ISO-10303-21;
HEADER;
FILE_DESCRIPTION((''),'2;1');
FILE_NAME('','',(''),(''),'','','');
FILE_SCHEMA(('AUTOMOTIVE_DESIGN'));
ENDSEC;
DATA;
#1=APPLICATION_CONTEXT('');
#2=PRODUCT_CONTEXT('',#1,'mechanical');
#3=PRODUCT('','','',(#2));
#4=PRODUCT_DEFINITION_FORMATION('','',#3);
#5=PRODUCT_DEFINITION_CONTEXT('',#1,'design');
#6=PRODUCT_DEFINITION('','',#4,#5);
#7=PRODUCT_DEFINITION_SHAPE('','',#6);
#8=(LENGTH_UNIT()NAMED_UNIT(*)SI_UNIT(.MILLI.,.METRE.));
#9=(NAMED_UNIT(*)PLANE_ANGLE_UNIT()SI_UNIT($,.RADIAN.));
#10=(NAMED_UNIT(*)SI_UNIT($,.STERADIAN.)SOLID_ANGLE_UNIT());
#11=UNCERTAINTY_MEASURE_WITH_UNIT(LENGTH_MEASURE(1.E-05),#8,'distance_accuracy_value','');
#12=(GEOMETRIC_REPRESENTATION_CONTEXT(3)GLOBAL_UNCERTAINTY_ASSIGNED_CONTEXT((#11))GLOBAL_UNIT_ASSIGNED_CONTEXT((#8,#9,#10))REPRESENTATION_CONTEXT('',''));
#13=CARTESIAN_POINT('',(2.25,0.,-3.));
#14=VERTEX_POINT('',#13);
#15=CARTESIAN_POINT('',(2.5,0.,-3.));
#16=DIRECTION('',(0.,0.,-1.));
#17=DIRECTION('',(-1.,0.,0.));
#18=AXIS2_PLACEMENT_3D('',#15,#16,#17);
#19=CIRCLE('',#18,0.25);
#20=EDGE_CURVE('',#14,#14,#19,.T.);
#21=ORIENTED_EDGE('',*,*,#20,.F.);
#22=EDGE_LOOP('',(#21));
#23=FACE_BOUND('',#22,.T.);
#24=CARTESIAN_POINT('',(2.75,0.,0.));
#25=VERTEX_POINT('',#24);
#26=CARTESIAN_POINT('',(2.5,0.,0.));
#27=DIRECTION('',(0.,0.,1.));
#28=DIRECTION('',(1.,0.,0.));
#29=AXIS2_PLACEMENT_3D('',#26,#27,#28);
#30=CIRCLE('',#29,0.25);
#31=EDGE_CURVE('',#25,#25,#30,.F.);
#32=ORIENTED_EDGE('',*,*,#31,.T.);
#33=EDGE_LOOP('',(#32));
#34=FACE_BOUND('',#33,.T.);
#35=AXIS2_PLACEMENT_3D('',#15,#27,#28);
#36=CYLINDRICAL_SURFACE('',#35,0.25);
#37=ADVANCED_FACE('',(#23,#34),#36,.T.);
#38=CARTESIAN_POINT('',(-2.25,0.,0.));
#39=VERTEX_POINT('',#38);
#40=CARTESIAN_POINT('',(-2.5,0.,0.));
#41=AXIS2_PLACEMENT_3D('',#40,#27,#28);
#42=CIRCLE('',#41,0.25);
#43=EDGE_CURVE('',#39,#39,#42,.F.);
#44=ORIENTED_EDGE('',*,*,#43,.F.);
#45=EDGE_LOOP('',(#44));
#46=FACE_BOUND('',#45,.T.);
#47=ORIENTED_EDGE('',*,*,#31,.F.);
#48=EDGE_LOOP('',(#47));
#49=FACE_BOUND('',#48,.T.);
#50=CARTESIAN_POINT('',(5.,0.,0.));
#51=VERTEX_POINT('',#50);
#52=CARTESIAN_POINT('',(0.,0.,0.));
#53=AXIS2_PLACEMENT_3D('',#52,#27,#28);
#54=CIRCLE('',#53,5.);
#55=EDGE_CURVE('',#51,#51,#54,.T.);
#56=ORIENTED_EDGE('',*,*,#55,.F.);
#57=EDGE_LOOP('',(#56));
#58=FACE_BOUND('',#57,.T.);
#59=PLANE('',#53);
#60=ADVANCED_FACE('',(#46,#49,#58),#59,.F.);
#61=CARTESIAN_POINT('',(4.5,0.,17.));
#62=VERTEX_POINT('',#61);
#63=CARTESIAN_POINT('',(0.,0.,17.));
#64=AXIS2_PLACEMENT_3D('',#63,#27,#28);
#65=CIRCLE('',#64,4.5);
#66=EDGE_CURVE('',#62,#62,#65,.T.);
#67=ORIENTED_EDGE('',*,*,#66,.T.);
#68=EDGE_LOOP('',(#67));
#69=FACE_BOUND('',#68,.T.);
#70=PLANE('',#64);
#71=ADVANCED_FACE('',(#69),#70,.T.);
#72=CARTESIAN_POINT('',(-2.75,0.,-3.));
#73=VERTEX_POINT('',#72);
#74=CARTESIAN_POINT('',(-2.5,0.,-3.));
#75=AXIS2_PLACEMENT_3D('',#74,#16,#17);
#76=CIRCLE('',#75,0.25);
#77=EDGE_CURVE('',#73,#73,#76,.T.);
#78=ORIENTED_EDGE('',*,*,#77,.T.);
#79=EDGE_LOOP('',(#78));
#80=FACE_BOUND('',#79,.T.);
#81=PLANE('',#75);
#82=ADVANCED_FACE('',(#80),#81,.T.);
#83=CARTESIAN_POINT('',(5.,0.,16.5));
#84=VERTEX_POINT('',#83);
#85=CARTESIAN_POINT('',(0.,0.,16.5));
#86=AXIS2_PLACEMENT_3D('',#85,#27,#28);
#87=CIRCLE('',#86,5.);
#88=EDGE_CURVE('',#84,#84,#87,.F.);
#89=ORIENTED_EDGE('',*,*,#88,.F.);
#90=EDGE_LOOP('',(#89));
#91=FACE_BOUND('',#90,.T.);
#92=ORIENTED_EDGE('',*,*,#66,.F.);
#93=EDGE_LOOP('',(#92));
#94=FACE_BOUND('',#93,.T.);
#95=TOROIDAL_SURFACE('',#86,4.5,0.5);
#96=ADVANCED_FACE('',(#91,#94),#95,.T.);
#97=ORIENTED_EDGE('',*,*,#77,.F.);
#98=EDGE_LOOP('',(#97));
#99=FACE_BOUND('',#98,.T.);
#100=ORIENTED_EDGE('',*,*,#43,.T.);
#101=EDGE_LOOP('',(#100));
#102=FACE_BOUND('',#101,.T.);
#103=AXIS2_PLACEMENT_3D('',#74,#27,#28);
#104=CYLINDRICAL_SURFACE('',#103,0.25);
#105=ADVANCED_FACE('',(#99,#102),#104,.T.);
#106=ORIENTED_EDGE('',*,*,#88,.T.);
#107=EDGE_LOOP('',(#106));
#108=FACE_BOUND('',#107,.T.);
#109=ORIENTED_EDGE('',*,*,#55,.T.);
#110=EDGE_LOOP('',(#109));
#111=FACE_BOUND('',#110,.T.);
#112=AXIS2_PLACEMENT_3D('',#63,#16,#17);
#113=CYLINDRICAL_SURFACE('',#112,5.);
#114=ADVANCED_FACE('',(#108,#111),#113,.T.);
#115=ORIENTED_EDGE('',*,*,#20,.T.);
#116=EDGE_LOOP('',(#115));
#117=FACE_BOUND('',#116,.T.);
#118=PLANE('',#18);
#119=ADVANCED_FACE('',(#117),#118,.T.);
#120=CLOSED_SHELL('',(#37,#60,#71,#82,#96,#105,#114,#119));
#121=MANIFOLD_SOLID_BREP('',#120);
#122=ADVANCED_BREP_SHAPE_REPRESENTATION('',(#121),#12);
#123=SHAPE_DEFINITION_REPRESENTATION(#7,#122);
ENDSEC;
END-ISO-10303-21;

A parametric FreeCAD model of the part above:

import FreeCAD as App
import Part
import Sketcher


def edges_at(feature, points):
    """Names of the edges that pass closest to the given points."""
    edges = feature.Shape.Edges
    near = lambda p: min(range(len(edges)), key=lambda i: edges[i].distToShape(Part.Vertex(*p))[0])
    return sorted({f"Edge{near(p) + 1}" for p in points})

doc = App.newDocument("Part")
body = doc.addObject("PartDesign::Body", "Body")

# Sketch on XY plane
sketch1 = doc.addObject("Sketcher::SketchObject", "Sketch")
body.addObject(sketch1)
sketch1.AttachmentSupport = (doc.XY_Plane, [""])
sketch1.MapMode = "FlatFace"
sketch1.addGeometry(Part.Circle(App.Vector(0, 0, 0), App.Vector(0, 0, 1), 5), False)
sketch1.addConstraint(Sketcher.Constraint("Coincident", 0, 3, -1, 1))
sketch1.addConstraint(Sketcher.Constraint("Diameter", 0, 10.0))
pad1 = doc.addObject("PartDesign::Pad", "Pad")
body.addObject(pad1)
pad1.Profile = sketch1
pad1.Length = 17

# Sketch on XY plane
sketch2 = doc.addObject("Sketcher::SketchObject", "Sketch001")
body.addObject(sketch2)
sketch2.AttachmentSupport = (doc.XY_Plane, [""])
sketch2.MapMode = "FlatFace"
sketch2.addGeometry(Part.Circle(App.Vector(2.5, 0, 0), App.Vector(0, 0, 1), 0.25), False)
sketch2.addGeometry(Part.Circle(App.Vector(-2.5, 0, 0), App.Vector(0, 0, 1), 0.25), False)
sketch2.addConstraint(Sketcher.Constraint("Equal", 0, 1))
sketch2.addConstraint(Sketcher.Constraint("Symmetric", 0, 3, 1, 3, -1, 1))
sketch2.addConstraint(Sketcher.Constraint("PointOnObject", 0, 3, -1))
sketch2.addConstraint(Sketcher.Constraint("Diameter", 0, 0.5))
sketch2.addConstraint(Sketcher.Constraint("DistanceX", 1, 3, 0, 3, 5.0))
pad2 = doc.addObject("PartDesign::Pad", "Pad001")
body.addObject(pad2)
pad2.Profile = sketch2
pad2.Length = 3
pad2.Reversed = True
doc.recompute()

fillet = doc.addObject("PartDesign::Fillet", "Fillet")
body.addObject(fillet)
fillet.Base = (pad2, edges_at(pad2, [(-5, 0, 17)]))
fillet.Radius = 0.5

doc.recompute()
